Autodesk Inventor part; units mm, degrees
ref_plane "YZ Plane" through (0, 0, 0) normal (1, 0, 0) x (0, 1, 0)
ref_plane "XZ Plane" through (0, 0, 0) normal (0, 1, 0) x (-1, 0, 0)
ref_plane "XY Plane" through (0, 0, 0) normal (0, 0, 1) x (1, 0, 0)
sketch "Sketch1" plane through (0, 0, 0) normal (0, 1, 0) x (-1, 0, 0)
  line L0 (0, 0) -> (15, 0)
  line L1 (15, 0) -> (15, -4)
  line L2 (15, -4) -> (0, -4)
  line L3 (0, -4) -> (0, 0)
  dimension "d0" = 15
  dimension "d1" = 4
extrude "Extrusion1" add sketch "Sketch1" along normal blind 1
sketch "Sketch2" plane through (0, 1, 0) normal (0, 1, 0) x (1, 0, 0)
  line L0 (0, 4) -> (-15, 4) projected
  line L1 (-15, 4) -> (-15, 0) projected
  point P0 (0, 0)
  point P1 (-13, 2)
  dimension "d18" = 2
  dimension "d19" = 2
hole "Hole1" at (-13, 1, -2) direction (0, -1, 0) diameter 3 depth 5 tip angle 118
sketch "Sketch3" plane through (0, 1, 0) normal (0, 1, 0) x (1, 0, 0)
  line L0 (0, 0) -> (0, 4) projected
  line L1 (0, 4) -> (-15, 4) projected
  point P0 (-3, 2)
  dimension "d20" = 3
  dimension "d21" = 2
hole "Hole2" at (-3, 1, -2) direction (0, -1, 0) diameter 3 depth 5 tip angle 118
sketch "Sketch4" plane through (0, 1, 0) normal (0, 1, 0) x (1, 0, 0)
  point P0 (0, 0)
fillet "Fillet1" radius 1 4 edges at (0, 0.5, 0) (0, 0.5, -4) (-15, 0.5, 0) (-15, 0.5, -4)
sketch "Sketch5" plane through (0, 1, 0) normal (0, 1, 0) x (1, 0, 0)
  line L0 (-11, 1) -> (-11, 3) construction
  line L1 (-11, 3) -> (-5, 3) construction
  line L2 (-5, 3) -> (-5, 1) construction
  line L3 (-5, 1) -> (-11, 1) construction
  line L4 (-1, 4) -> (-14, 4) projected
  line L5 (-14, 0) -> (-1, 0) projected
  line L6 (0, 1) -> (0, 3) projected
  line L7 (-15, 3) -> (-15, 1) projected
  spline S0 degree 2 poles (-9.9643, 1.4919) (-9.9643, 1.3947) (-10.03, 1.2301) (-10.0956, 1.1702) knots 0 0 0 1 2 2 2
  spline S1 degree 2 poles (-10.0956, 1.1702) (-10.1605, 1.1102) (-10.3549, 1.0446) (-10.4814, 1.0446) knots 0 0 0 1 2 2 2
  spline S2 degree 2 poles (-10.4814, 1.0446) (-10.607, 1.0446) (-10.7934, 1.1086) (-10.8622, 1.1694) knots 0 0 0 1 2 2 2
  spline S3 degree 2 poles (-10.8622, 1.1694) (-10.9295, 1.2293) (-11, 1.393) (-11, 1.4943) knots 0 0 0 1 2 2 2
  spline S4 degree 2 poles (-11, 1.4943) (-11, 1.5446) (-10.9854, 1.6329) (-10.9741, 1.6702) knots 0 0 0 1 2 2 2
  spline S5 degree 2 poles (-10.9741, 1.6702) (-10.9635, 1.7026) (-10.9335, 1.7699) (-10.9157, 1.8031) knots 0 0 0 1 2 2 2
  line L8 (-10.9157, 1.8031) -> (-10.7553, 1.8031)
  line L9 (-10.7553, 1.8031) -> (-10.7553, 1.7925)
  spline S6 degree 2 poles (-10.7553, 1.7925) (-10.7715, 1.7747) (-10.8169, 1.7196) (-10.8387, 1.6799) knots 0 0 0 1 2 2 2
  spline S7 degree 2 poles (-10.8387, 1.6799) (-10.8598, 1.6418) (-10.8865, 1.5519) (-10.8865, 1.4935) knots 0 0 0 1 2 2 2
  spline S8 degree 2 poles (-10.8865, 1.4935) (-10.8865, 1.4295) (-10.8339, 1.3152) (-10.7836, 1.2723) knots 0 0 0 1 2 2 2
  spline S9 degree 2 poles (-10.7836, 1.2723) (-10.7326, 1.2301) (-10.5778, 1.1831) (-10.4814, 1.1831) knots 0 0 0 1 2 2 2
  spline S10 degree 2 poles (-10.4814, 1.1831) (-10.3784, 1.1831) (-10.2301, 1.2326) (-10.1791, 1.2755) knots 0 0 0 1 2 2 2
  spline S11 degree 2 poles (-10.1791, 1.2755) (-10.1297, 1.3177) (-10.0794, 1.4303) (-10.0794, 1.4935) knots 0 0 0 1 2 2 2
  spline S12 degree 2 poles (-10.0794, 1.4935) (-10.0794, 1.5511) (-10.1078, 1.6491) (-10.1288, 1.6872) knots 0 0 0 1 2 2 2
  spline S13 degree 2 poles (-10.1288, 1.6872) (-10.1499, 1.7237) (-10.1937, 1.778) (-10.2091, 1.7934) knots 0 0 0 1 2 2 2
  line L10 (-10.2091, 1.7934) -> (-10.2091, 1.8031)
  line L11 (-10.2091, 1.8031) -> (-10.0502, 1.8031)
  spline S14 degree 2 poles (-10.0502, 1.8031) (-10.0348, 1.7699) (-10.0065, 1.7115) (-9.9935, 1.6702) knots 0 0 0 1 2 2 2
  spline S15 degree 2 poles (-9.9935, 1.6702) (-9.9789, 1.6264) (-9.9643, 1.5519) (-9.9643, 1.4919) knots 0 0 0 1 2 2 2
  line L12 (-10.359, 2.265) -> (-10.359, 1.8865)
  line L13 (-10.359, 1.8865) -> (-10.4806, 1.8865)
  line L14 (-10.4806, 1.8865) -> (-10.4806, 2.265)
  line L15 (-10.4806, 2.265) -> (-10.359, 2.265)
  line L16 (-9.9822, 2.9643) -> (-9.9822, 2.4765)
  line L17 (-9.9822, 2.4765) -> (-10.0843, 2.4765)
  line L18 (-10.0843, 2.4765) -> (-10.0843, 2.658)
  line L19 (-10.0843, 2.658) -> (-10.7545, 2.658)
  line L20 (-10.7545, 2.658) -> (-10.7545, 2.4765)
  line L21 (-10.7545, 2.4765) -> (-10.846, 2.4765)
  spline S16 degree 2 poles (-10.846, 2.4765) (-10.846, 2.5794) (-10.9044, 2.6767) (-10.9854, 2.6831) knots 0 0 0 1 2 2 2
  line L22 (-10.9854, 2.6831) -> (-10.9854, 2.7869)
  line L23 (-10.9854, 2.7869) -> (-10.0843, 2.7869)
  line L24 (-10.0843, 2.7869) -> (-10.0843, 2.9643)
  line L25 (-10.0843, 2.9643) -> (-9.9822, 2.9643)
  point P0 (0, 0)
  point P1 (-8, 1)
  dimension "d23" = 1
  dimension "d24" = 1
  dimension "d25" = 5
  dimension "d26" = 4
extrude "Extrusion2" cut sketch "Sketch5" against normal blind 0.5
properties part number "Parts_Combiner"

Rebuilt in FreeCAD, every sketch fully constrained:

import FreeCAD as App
import Part
import Sketcher

V = App.Vector


def edges_at(feature, points):
    """Names of the edges that pass closest to the given points."""
    edges = feature.Shape.Edges
    near = lambda p: min(range(len(edges)), key=lambda i: edges[i].distToShape(Part.Vertex(*p))[0])
    return sorted({f"Edge{near(p) + 1}" for p in points})

doc = App.newDocument("Part")
body = doc.addObject("PartDesign::Body", "Body")

sketch1 = body.newObject("Sketcher::SketchObject", "Sketch")
sketch1.AttachmentSupport = (doc.getObject("XZ_Plane"), [""])
sketch1.MapMode = "FlatFace"
sketch1.addGeometry([
    Part.LineSegment(V(-15, 0, 0), V(0, 0, 0)),
    Part.LineSegment(V(0, 0, 0), V(0, -4, 0)),
    Part.LineSegment(V(0, -4, 0), V(-15, -4, 0)),
    Part.LineSegment(V(-15, -4, 0), V(-15, 0, 0)),
], False)
sketch1.addConstraint([
    Sketcher.Constraint("Coincident", 0, 2, 1, 1),
    Sketcher.Constraint("Coincident", 1, 2, 2, 1),
    Sketcher.Constraint("Coincident", 2, 2, 3, 1),
    Sketcher.Constraint("Coincident", 3, 2, 0, 1),
    Sketcher.Constraint("Horizontal", 0),
    Sketcher.Constraint("Vertical", 1),
    Sketcher.Constraint("Horizontal", 2),
    Sketcher.Constraint("Vertical", 3),
    Sketcher.Constraint("Coincident", 0, 2, -1, 1),
    Sketcher.Constraint("DistanceX", 0, 1, 0, 2, 15.0),
    Sketcher.Constraint("DistanceY", 1, 2, 1, 1, 4.0),
])
pad1 = body.newObject("PartDesign::Pad", "Pad")
pad1.Profile = sketch1
pad1.Length = 1
pad1.Reversed = True

sketch2 = body.newObject("Sketcher::SketchObject", "Sketch001")
sketch2.AttachmentSupport = (doc.getObject("XZ_Plane"), [""])
sketch2.MapMode = "FlatFace"
sketch2.AttachmentOffset = App.Placement(V(0, 0, -1), App.Rotation())
sketch2.addGeometry(Part.Circle(V(-13, -2, 0), V(0, 0, 1), 1.5), False)
sketch2.addConstraint([
    Sketcher.Constraint("Diameter", 0, 3.0),
    Sketcher.Constraint("DistanceX", 0, 3, -1, 1, 13.0),
    Sketcher.Constraint("DistanceY", 0, 3, -1, 1, 2.0),
])
doc.recompute()
hole = body.newObject("PartDesign::Hole", "Hole")
hole.Profile = sketch2
hole.ThreadType = "None"
hole.Diameter = 3
hole.DepthType = "Dimension"
hole.Depth = 5
hole.DrillPoint = "Angled"
hole.DrillPointAngle = 118
hole.Reversed = True

sketch3 = body.newObject("Sketcher::SketchObject", "Sketch002")
sketch3.AttachmentSupport = (doc.getObject("XZ_Plane"), [""])
sketch3.MapMode = "FlatFace"
sketch3.AttachmentOffset = App.Placement(V(0, 0, -1), App.Rotation())
sketch3.addGeometry(Part.Circle(V(-3, -2, 0), V(0, 0, 1), 1.5), False)
sketch3.addConstraint([
    Sketcher.Constraint("Diameter", 0, 3.0),
    Sketcher.Constraint("DistanceX", 0, 3, -1, 1, 3.0),
    Sketcher.Constraint("DistanceY", 0, 3, -1, 1, 2.0),
])
doc.recompute()
hole2 = body.newObject("PartDesign::Hole", "Hole001")
hole2.Profile = sketch3
hole2.ThreadType = "None"
hole2.Diameter = 3
hole2.DepthType = "Dimension"
hole2.Depth = 5
hole2.DrillPoint = "Angled"
hole2.DrillPointAngle = 118
hole2.Reversed = True
doc.recompute()

fillet = body.newObject("PartDesign::Fillet", "Fillet")
fillet.Base = (hole2, edges_at(hole2, [
    (0, 0.5, 0),
    (0, 0.5, -4),
    (-15, 0.5, 0),
    (-15, 0.5, -4),
]))
fillet.Radius = 1

sketch4 = body.newObject("Sketcher::SketchObject", "Sketch003")
sketch4.AttachmentSupport = (doc.getObject("XZ_Plane"), [""])
sketch4.MapMode = "FlatFace"
sketch4.AttachmentOffset = App.Placement(V(0, 0, -1), App.Rotation())
sketch4.addGeometry([
    Part.BSplineCurve([V(-9.9643, -1.4919, 0), V(-9.9643, -1.3947, 0), V(-10.03, -1.2301, 0), V(-10.0956, -1.1702, 0)], [3, 1, 3], [0, 1, 2], False, 2, [1, 1, 1, 1], False),
    Part.BSplineCurve([V(-9.9935, -1.6702, 0), V(-9.9789, -1.6264, 0), V(-9.9643, -1.5519, 0), V(-9.9643, -1.4919, 0)], [3, 1, 3], [0, 1, 2], False, 2, [1, 1, 1, 1], False),
    Part.BSplineCurve([V(-10.0502, -1.8031, 0), V(-10.0348, -1.7699, 0), V(-10.0065, -1.7115, 0), V(-9.9935, -1.6702, 0)], [3, 1, 3], [0, 1, 2], False, 2, [1, 1, 1, 1], False),
    Part.LineSegment(V(-10.0502, -1.8031, 0), V(-10.2091, -1.8031, 0)),
    Part.LineSegment(V(-10.2091, -1.8031, 0), V(-10.2091, -1.7934, 0)),
    Part.BSplineCurve([V(-10.1288, -1.6872, 0), V(-10.1499, -1.7237, 0), V(-10.1937, -1.778, 0), V(-10.2091, -1.7934, 0)], [3, 1, 3], [0, 1, 2], False, 2, [1, 1, 1, 1], False),
    Part.BSplineCurve([V(-10.0794, -1.4935, 0), V(-10.0794, -1.5511, 0), V(-10.1078, -1.6491, 0), V(-10.1288, -1.6872, 0)], [3, 1, 3], [0, 1, 2], False, 2, [1, 1, 1, 1], False),
    Part.BSplineCurve([V(-10.1791, -1.2755, 0), V(-10.1297, -1.3177, 0), V(-10.0794, -1.4303, 0), V(-10.0794, -1.4935, 0)], [3, 1, 3], [0, 1, 2], False, 2, [1, 1, 1, 1], False),
    Part.BSplineCurve([V(-10.4814, -1.1831, 0), V(-10.3784, -1.1831, 0), V(-10.2301, -1.2326, 0), V(-10.1791, -1.2755, 0)], [3, 1, 3], [0, 1, 2], False, 2, [1, 1, 1, 1], False),
    Part.BSplineCurve([V(-10.7836, -1.2723, 0), V(-10.7326, -1.2301, 0), V(-10.5778, -1.1831, 0), V(-10.4814, -1.1831, 0)], [3, 1, 3], [0, 1, 2], False, 2, [1, 1, 1, 1], False),
    Part.BSplineCurve([V(-10.8865, -1.4935, 0), V(-10.8865, -1.4295, 0), V(-10.8339, -1.3152, 0), V(-10.7836, -1.2723, 0)], [3, 1, 3], [0, 1, 2], False, 2, [1, 1, 1, 1], False),
    Part.BSplineCurve([V(-10.8387, -1.6799, 0), V(-10.8598, -1.6418, 0), V(-10.8865, -1.5519, 0), V(-10.8865, -1.4935, 0)], [3, 1, 3], [0, 1, 2], False, 2, [1, 1, 1, 1], False),
    Part.BSplineCurve([V(-10.7553, -1.7925, 0), V(-10.7715, -1.7747, 0), V(-10.8169, -1.7196, 0), V(-10.8387, -1.6799, 0)], [3, 1, 3], [0, 1, 2], False, 2, [1, 1, 1, 1], False),
    Part.LineSegment(V(-10.7553, -1.7925, 0), V(-10.7553, -1.8031, 0)),
    Part.LineSegment(V(-10.7553, -1.8031, 0), V(-10.9157, -1.8031, 0)),
    Part.BSplineCurve([V(-10.9741, -1.6702, 0), V(-10.9635, -1.7026, 0), V(-10.9335, -1.7699, 0), V(-10.9157, -1.8031, 0)], [3, 1, 3], [0, 1, 2], False, 2, [1, 1, 1, 1], False),
    Part.BSplineCurve([V(-11, -1.4943, 0), V(-11, -1.5446, 0), V(-10.9854, -1.6329, 0), V(-10.9741, -1.6702, 0)], [3, 1, 3], [0, 1, 2], False, 2, [1, 1, 1, 1], False),
    Part.BSplineCurve([V(-10.8622, -1.1694, 0), V(-10.9295, -1.2293, 0), V(-11, -1.393, 0), V(-11, -1.4943, 0)], [3, 1, 3], [0, 1, 2], False, 2, [1, 1, 1, 1], False),
    Part.BSplineCurve([V(-10.4814, -1.0446, 0), V(-10.607, -1.0446, 0), V(-10.7934, -1.1086, 0), V(-10.8622, -1.1694, 0)], [3, 1, 3], [0, 1, 2], False, 2, [1, 1, 1, 1], False),
    Part.BSplineCurve([V(-10.0956, -1.1702, 0), V(-10.1605, -1.1102, 0), V(-10.3549, -1.0446, 0), V(-10.4814, -1.0446, 0)], [3, 1, 3], [0, 1, 2], False, 2, [1, 1, 1, 1], False),
    Part.LineSegment(V(-10.359, -1.8865, 0), V(-10.359, -2.265, 0)),
    Part.LineSegment(V(-10.359, -2.265, 0), V(-10.4806, -2.265, 0)),
    Part.LineSegment(V(-10.4806, -2.265, 0), V(-10.4806, -1.8865, 0)),
    Part.LineSegment(V(-10.4806, -1.8865, 0), V(-10.359, -1.8865, 0)),
    Part.LineSegment(V(-9.9822, -2.4765, 0), V(-9.9822, -2.9643, 0)),
    Part.LineSegment(V(-9.9822, -2.9643, 0), V(-10.0843, -2.9643, 0)),
    Part.LineSegment(V(-10.0843, -2.9643, 0), V(-10.0843, -2.7869, 0)),
    Part.LineSegment(V(-10.0843, -2.7869, 0), V(-10.9854, -2.7869, 0)),
    Part.LineSegment(V(-10.9854, -2.7869, 0), V(-10.9854, -2.6831, 0)),
    Part.BSplineCurve([V(-10.846, -2.4765, 0), V(-10.846, -2.5794, 0), V(-10.9044, -2.6767, 0), V(-10.9854, -2.6831, 0)], [3, 1, 3], [0, 1, 2], False, 2, [1, 1, 1, 1], False),
    Part.LineSegment(V(-10.846, -2.4765, 0), V(-10.7545, -2.4765, 0)),
    Part.LineSegment(V(-10.7545, -2.4765, 0), V(-10.7545, -2.658, 0)),
    Part.LineSegment(V(-10.7545, -2.658, 0), V(-10.0843, -2.658, 0)),
    Part.LineSegment(V(-10.0843, -2.658, 0), V(-10.0843, -2.4765, 0)),
    Part.LineSegment(V(-10.0843, -2.4765, 0), V(-9.9822, -2.4765, 0)),
], False)
sketch4.addConstraint([
    Sketcher.Constraint("Block", 0),
    Sketcher.Constraint("Block", 1),
    Sketcher.Constraint("Block", 2),
    Sketcher.Constraint("Block", 5),
    Sketcher.Constraint("Block", 6),
    Sketcher.Constraint("Block", 7),
    Sketcher.Constraint("Block", 8),
    Sketcher.Constraint("Block", 9),
    Sketcher.Constraint("Block", 10),
    Sketcher.Constraint("Block", 11),
    Sketcher.Constraint("Block", 12),
    Sketcher.Constraint("Block", 15),
    Sketcher.Constraint("Block", 16),
    Sketcher.Constraint("Block", 17),
    Sketcher.Constraint("Block", 18),
    Sketcher.Constraint("Block", 19),
    Sketcher.Constraint("Block", 29),
    Sketcher.Constraint("Coincident", 2, 1, 3, 1),
    Sketcher.Constraint("Coincident", 3, 2, 4, 1),
    Sketcher.Constraint("Coincident", 4, 2, 5, 2),
    Sketcher.Constraint("Coincident", 12, 1, 13, 1),
    Sketcher.Constraint("Coincident", 13, 2, 14, 1),
    Sketcher.Constraint("Coincident", 14, 2, 15, 2),
    Sketcher.Constraint("Coincident", 20, 2, 21, 1),
    Sketcher.Constraint("Coincident", 21, 2, 22, 1),
    Sketcher.Constraint("Coincident", 22, 2, 23, 1),
    Sketcher.Constraint("Coincident", 23, 2, 20, 1),
    Sketcher.Constraint("Coincident", 24, 2, 25, 1),
    Sketcher.Constraint("Coincident", 25, 2, 26, 1),
    Sketcher.Constraint("Coincident", 26, 2, 27, 1),
    Sketcher.Constraint("Coincident", 27, 2, 28, 1),
    Sketcher.Constraint("Coincident", 28, 2, 29, 2),
    Sketcher.Constraint("Coincident", 29, 1, 30, 1),
    Sketcher.Constraint("Coincident", 30, 2, 31, 1),
    Sketcher.Constraint("Coincident", 31, 2, 32, 1),
    Sketcher.Constraint("Coincident", 32, 2, 33, 1),
    Sketcher.Constraint("Coincident", 33, 2, 34, 1),
    Sketcher.Constraint("Coincident", 34, 2, 24, 1),
    Sketcher.Constraint("Horizontal", 3),
    Sketcher.Constraint("Vertical", 4),
    Sketcher.Constraint("Vertical", 13),
    Sketcher.Constraint("Horizontal", 14),
    Sketcher.Constraint("Vertical", 20),
    Sketcher.Constraint("Horizontal", 21),
    Sketcher.Constraint("Vertical", 22),
    Sketcher.Constraint("Horizontal", 23),
    Sketcher.Constraint("Vertical", 24),
    Sketcher.Constraint("Horizontal", 25),
    Sketcher.Constraint("Vertical", 26),
    Sketcher.Constraint("Horizontal", 27),
    Sketcher.Constraint("Vertical", 28),
    Sketcher.Constraint("Horizontal", 30),
    Sketcher.Constraint("Vertical", 31),
    Sketcher.Constraint("Horizontal", 32),
    Sketcher.Constraint("Vertical", 33),
    Sketcher.Constraint("Horizontal", 34),
    Sketcher.Constraint("Horizontal", 30, 2, 33, 2),
    Sketcher.Constraint("Vertical", 26, 2, 32, 2),
    Sketcher.Constraint("DistanceX", 25, 2, 25, 1, 0.102),
    Sketcher.Constraint("DistanceX", 27, 2, 27, 1, 0.901),
    Sketcher.Constraint("DistanceX", 20, 2, 3, 2, 0.15),
    Sketcher.Constraint("DistanceY", 30, 2, 22, 2, 0.59),
    Sketcher.Constraint("DistanceX", 21, 2, 21, 1, 0.1216),
    Sketcher.Constraint("DistanceX", 30, 1, 30, 2, 0.0915),
    Sketcher.Constraint("DistanceY", 20, 2, 20, 1, 0.3785),
    Sketcher.Constraint("DistanceY", 24, 2, 24, 1, 0.4878),
    Sketcher.Constraint("DistanceY", 26, 1, 26, 2, 0.1774),
    Sketcher.Constraint("DistanceY", 31, 2, 31, 1, 0.1815),
])
pocket1 = body.newObject("PartDesign::Pocket", "Pocket")
pocket1.Profile = sketch4
pocket1.Length = 0.5
pocket1.Reversed = True

doc.recompute()
